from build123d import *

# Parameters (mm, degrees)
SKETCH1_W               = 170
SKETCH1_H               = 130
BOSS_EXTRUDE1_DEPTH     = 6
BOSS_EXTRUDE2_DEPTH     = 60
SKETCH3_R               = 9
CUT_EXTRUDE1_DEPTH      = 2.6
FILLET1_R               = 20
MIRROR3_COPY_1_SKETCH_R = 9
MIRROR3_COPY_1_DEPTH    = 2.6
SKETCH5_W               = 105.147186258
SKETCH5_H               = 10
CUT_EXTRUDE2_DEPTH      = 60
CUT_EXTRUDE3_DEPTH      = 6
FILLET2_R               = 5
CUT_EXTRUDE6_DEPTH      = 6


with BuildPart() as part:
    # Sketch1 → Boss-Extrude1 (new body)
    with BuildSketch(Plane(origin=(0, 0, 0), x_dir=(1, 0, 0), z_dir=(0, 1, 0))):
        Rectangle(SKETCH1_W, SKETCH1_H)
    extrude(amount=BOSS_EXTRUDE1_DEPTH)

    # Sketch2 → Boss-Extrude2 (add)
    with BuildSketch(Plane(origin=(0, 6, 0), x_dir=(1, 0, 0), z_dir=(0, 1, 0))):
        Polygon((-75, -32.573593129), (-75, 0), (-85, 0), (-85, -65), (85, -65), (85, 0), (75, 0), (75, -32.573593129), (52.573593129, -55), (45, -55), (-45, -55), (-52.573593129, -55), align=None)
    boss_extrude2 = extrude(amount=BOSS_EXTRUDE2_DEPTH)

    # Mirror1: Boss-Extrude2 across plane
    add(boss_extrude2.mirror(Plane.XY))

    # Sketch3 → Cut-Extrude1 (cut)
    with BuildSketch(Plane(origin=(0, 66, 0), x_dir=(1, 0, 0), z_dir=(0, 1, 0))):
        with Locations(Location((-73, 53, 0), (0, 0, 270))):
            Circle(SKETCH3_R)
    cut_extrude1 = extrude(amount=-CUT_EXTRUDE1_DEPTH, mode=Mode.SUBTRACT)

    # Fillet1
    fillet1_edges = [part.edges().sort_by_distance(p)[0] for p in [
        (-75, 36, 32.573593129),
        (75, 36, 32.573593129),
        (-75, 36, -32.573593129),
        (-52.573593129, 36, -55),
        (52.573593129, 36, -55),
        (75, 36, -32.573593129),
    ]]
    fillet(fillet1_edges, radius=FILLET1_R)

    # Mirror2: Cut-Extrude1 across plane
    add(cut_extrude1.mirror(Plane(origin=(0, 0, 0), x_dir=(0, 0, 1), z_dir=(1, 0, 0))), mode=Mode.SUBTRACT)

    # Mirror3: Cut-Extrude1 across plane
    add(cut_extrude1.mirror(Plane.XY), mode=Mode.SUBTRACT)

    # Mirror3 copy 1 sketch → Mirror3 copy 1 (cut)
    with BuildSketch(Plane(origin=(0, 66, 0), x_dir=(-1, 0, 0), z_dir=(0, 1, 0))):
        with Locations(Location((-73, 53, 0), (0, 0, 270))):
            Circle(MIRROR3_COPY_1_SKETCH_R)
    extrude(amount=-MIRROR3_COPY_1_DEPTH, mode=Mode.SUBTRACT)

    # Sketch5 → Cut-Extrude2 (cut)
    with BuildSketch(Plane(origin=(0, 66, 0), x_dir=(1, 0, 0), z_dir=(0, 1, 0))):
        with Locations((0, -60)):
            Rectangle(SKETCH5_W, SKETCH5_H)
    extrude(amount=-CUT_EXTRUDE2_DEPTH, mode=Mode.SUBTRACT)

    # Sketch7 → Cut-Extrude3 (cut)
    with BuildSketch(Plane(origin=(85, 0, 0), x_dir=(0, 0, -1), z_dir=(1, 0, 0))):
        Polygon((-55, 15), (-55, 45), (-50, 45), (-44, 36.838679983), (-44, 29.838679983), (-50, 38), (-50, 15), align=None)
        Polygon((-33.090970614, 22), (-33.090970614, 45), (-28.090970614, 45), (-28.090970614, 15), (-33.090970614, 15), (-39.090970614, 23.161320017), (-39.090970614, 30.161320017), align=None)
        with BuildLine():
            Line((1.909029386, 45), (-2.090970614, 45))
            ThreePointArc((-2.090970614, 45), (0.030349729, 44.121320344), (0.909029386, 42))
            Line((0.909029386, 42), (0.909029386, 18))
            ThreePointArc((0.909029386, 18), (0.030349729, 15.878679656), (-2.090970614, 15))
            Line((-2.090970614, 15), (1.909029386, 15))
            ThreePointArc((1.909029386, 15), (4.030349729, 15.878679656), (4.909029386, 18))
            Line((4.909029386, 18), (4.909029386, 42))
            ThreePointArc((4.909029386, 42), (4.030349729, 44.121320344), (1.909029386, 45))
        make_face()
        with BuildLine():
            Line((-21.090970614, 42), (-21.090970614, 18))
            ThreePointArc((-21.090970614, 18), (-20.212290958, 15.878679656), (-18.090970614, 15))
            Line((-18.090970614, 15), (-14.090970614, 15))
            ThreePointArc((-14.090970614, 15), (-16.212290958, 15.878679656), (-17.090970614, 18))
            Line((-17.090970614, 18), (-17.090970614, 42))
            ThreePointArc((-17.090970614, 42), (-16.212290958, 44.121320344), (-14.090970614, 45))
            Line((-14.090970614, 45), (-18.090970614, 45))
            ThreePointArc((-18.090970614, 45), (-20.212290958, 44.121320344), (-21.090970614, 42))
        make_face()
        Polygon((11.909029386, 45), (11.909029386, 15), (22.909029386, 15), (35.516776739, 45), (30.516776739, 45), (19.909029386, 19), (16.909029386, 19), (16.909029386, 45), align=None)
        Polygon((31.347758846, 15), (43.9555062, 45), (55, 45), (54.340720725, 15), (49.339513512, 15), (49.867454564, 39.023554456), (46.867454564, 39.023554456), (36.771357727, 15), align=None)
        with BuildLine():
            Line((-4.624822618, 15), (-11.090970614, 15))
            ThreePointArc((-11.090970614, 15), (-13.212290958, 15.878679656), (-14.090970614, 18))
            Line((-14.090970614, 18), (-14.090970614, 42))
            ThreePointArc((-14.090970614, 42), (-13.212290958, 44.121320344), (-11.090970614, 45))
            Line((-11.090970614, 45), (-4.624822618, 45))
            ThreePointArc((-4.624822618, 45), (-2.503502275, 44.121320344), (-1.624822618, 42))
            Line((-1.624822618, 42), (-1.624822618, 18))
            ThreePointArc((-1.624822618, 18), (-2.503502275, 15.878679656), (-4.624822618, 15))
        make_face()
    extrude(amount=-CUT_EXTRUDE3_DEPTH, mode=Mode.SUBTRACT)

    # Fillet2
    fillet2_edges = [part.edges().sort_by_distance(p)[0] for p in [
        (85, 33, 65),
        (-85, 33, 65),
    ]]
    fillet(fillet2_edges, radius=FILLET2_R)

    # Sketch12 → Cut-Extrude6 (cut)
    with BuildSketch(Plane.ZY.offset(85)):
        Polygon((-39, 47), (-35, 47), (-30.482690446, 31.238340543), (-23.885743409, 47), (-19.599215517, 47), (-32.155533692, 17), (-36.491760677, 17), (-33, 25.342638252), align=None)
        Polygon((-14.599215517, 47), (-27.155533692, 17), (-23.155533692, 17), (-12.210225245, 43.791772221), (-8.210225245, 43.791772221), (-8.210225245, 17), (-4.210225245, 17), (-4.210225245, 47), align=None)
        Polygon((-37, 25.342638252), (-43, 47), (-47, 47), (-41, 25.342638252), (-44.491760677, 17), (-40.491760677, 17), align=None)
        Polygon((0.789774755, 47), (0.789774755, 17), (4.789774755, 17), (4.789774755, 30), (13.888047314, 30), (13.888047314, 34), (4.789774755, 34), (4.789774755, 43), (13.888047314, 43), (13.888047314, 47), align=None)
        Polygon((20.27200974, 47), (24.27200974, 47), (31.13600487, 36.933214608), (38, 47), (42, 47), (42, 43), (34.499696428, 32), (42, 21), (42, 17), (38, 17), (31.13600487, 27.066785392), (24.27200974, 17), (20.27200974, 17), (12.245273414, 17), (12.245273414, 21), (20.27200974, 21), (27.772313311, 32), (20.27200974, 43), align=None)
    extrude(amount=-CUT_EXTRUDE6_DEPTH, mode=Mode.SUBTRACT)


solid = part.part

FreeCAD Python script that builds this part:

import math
import FreeCAD as App
import Part
import Sketcher

V = App.Vector


def edges_at(feature, points):
    """Names of the edges that pass closest to the given points."""
    edges = feature.Shape.Edges
    near = lambda p: min(range(len(edges)), key=lambda i: edges[i].distToShape(Part.Vertex(*p))[0])
    return sorted({f"Edge{near(p) + 1}" for p in points})

doc = App.newDocument("Part")
body = doc.addObject("PartDesign::Body", "Body")

# Sketch on XZ plane
sketch1 = body.newObject("Sketcher::SketchObject", "Sketch")
sketch1.AttachmentSupport = (doc.getObject("XZ_Plane"), [""])
sketch1.MapMode = "FlatFace"
sketch1.addGeometry([
    Part.LineSegment(V(-85, -65, 0), V(-85, 65, 0)),
    Part.LineSegment(V(-85, 65, 0), V(85, 65, 0)),
    Part.LineSegment(V(85, 65, 0), V(85, -65, 0)),
    Part.LineSegment(V(85, -65, 0), V(-85, -65, 0)),
], False)
sketch1.addConstraint([
    Sketcher.Constraint("Coincident", 0, 2, 1, 1),
    Sketcher.Constraint("Coincident", 1, 2, 2, 1),
    Sketcher.Constraint("Coincident", 2, 2, 3, 1),
    Sketcher.Constraint("Coincident", 3, 2, 0, 1),
    Sketcher.Constraint("Vertical", 0),
    Sketcher.Constraint("Horizontal", 1),
    Sketcher.Constraint("Vertical", 2),
    Sketcher.Constraint("Horizontal", 3),
    Sketcher.Constraint("Symmetric", 0, 2, 2, 2, -1, 1),
    Sketcher.Constraint("DistanceX", 1, 1, 1, 2, 170.0),
    Sketcher.Constraint("DistanceY", 0, 1, 0, 2, 130.0),
])
pad1 = body.newObject("PartDesign::Pad", "Pad")
pad1.Profile = sketch1
pad1.Length = 6
pad1.Reversed = True

# Sketch on XZ plane
sketch2 = body.newObject("Sketcher::SketchObject", "Sketch001")
sketch2.AttachmentSupport = (doc.getObject("XZ_Plane"), [""])
sketch2.MapMode = "FlatFace"
sketch2.AttachmentOffset = App.Placement(V(0, 0, -6), App.Rotation())
sketch2.addGeometry([
    Part.LineSegment(V(-75, 32.573593, 0), V(-75, 0, 0)),  # 0
    Part.LineSegment(V(-75, 0, 0), V(-85, 0, 0)),  # 1
    Part.LineSegment(V(-85, 0, 0), V(-85, 65, 0)),  # 2
    Part.LineSegment(V(-85, 65, 0), V(85, 65, 0)),  # 3
    Part.LineSegment(V(85, 65, 0), V(85, 0, 0)),  # 4
    Part.LineSegment(V(85, 0, 0), V(75, 0, 0)),  # 5
    Part.LineSegment(V(75, 0, 0), V(75, 32.573593, 0)),  # 6
    Part.LineSegment(V(75, 32.573593, 0), V(52.573593, 55, 0)),  # 7
    Part.LineSegment(V(52.573593, 55, 0), V(-52.573593, 55, 0)),  # 8
    Part.LineSegment(V(-52.573593, 55, 0), V(-75, 32.573593, 0)),  # 9
], False)
sketch2.addConstraint([
    Sketcher.Constraint("Coincident", 0, 2, 1, 1),
    Sketcher.Constraint("Coincident", 1, 2, 2, 1),
    Sketcher.Constraint("Coincident", 2, 2, 3, 1),
    Sketcher.Constraint("Coincident", 3, 2, 4, 1),
    Sketcher.Constraint("Coincident", 4, 2, 5, 1),
    Sketcher.Constraint("Coincident", 5, 2, 6, 1),
    Sketcher.Constraint("Coincident", 6, 2, 7, 1),
    Sketcher.Constraint("Coincident", 7, 2, 8, 1),
    Sketcher.Constraint("Coincident", 8, 2, 9, 1),
    Sketcher.Constraint("Coincident", 9, 2, 0, 1),
    Sketcher.Constraint("Vertical", 0),
    Sketcher.Constraint("Horizontal", 1),
    Sketcher.Constraint("Vertical", 2),
    Sketcher.Constraint("Horizontal", 3),
    Sketcher.Constraint("Vertical", 4),
    Sketcher.Constraint("Horizontal", 5),
    Sketcher.Constraint("Vertical", 6),
    Sketcher.Constraint("Horizontal", 8),
    Sketcher.Constraint("Symmetric", 1, 2, 4, 2, -1, 1),
    Sketcher.Constraint("Symmetric", 0, 2, 5, 2, -2),
    Sketcher.Constraint("Perpendicular", 7, 9),
    Sketcher.Constraint("Horizontal", 6, 2, 9, 2),
    Sketcher.Constraint("Equal", 7, 9),
    Sketcher.Constraint("DistanceX", 1, 2, 1, 1, 10.0),
    Sketcher.Constraint("DistanceX", 3, 1, 3, 2, 170.0),
    Sketcher.Constraint("DistanceY", 2, 1, 2, 2, 65.0),
    Sketcher.Constraint("DistanceY", -1, 1, 7, 2, 55.0),
    Sketcher.Constraint("Distance", 7, 31.715729),
])
pad2 = body.newObject("PartDesign::Pad", "Pad001")
pad2.Profile = sketch2
pad2.Length = 60
pad2.Reversed = True
doc.recompute()

mirrored = body.newObject("PartDesign::Mirrored", "Mirrored")
mirrored.Originals = [pad2]
mirrored.MirrorPlane = (doc.getObject("XY_Plane"), [""])
body.Tip = mirrored

# Sketch on XZ plane
sketch3 = body.newObject("Sketcher::SketchObject", "Sketch002")
sketch3.AttachmentSupport = (doc.getObject("XZ_Plane"), [""])
sketch3.MapMode = "FlatFace"
sketch3.AttachmentOffset = App.Placement(V(0, 0, -66), App.Rotation())
sketch3.addGeometry(Part.Circle(V(-73, -53, 0), V(0, 0, 1), 9), False)
sketch3.addConstraint([
    Sketcher.Constraint("Diameter", 0, 18.0),
    Sketcher.Constraint("DistanceX", 0, 3, -1, 1, 73.0),
    Sketcher.Constraint("DistanceY", 0, 3, -1, 1, 53.0),
])
pocket1 = body.newObject("PartDesign::Pocket", "Pocket")
pocket1.Profile = sketch3
pocket1.Length = 2.6
pocket1.Reversed = True
doc.recompute()

fillet = body.newObject("PartDesign::Fillet", "Fillet")
fillet.Base = (pocket1, edges_at(pocket1, [
    (-75, 36, 32.574),
    (75, 36, 32.574),
    (-75, 36, -32.574),
    (-52.574, 36, -55),
    (52.574, 36, -55),
    (75, 36, -32.574),
]))
fillet.Radius = 20
doc.recompute()

mirrored2 = body.newObject("PartDesign::Mirrored", "Mirrored001")
mirrored2.Originals = [pocket1]
mirrored2.MirrorPlane = (doc.getObject("YZ_Plane"), [""])
body.Tip = mirrored2
doc.recompute()

mirrored3 = body.newObject("PartDesign::Mirrored", "Mirrored002")
mirrored3.Originals = [pocket1]
mirrored3.MirrorPlane = (doc.getObject("XY_Plane"), [""])
body.Tip = mirrored3

# Sketch on XZ plane
sketch4 = body.newObject("Sketcher::SketchObject", "Sketch003")
sketch4.AttachmentSupport = (doc.getObject("XZ_Plane"), [""])
sketch4.MapMode = "FlatFace"
sketch4.AttachmentOffset = App.Placement(V(0, 0, -66), App.Rotation())
sketch4.addGeometry(Part.Circle(V(73, 53, 0), V(0, 0, 1), 9), False)
sketch4.addConstraint([
    Sketcher.Constraint("Diameter", 0, 18.0),
    Sketcher.Constraint("DistanceX", -1, 1, 0, 3, 73.0),
    Sketcher.Constraint("DistanceY", -1, 1, 0, 3, 53.0),
])
pocket2 = body.newObject("PartDesign::Pocket", "Pocket001")
pocket2.Profile = sketch4
pocket2.Length = 2.6
pocket2.Reversed = True

# Sketch on XZ plane
sketch5 = body.newObject("Sketcher::SketchObject", "Sketch004")
sketch5.AttachmentSupport = (doc.getObject("XZ_Plane"), [""])
sketch5.MapMode = "FlatFace"
sketch5.AttachmentOffset = App.Placement(V(0, 0, -66), App.Rotation())
sketch5.addGeometry([
    Part.LineSegment(V(-52.573593, 55, 0), V(-52.573593, 65, 0)),
    Part.LineSegment(V(-52.573593, 65, 0), V(52.573593, 65, 0)),
    Part.LineSegment(V(52.573593, 65, 0), V(52.573593, 55, 0)),
    Part.LineSegment(V(52.573593, 55, 0), V(-52.573593, 55, 0)),
], False)
sketch5.addConstraint([
    Sketcher.Constraint("Coincident", 0, 2, 1, 1),
    Sketcher.Constraint("Coincident", 1, 2, 2, 1),
    Sketcher.Constraint("Coincident", 2, 2, 3, 1),
    Sketcher.Constraint("Coincident", 3, 2, 0, 1),
    Sketcher.Constraint("Vertical", 0),
    Sketcher.Constraint("Horizontal", 1),
    Sketcher.Constraint("Vertical", 2),
    Sketcher.Constraint("Horizontal", 3),
    Sketcher.Constraint("DistanceY", 0, 1, 0, 2, 10.0),
    Sketcher.Constraint("DistanceY", -1, 1, 0, 2, 65.0),
    Sketcher.Constraint("DistanceX", 1, 1, 1, 2, 105.147186),
    Sketcher.Constraint("DistanceX", 0, 2, -1, 1, 52.573593),
])
pocket3 = body.newObject("PartDesign::Pocket", "Pocket002")
pocket3.Profile = sketch5
pocket3.Length = 60
pocket3.Reversed = True

# Sketch on YZ plane
sketch6 = body.newObject("Sketcher::SketchObject", "Sketch005")
sketch6.AttachmentSupport = (doc.getObject("YZ_Plane"), [""])
sketch6.MapMode = "FlatFace"
sketch6.AttachmentOffset = App.Placement(V(0, 0, 85), App.Rotation())
sketch6.addGeometry([
    Part.LineSegment(V(45, 55, 0), V(15, 55, 0)),  # 0
    Part.LineSegment(V(15, 55, 0), V(15, 50, 0)),  # 1
    Part.LineSegment(V(15, 50, 0), V(38, 50, 0)),  # 2
    Part.LineSegment(V(38, 50, 0), V(29.83868, 44, 0)),  # 3
    Part.LineSegment(V(29.83868, 44, 0), V(36.83868, 44, 0)),  # 4
    Part.LineSegment(V(36.83868, 44, 0), V(45, 50, 0)),  # 5
    Part.LineSegment(V(45, 50, 0), V(45, 55, 0)),  # 6
    Part.LineSegment(V(45, 33.090971, 0), V(22, 33.090971, 0)),  # 7
    Part.LineSegment(V(22, 33.090971, 0), V(30.16132, 39.090971, 0)),  # 8
    Part.LineSegment(V(30.16132, 39.090971, 0), V(23.16132, 39.090971, 0)),  # 9
    Part.LineSegment(V(23.16132, 39.090971, 0), V(15, 33.090971, 0)),  # 10
    Part.LineSegment(V(15, 33.090971, 0), V(15, 28.090971, 0)),  # 11
    Part.LineSegment(V(15, 28.090971, 0), V(45, 28.090971, 0)),  # 12
    Part.LineSegment(V(45, 28.090971, 0), V(45, 33.090971, 0)),  # 13
    Part.LineSegment(V(45, -1.909029, 0), V(45, 2.090971, 0)),  # 14
    Part.ArcOfCircle(Part.Circle(V(42, 2.090971, 0), V(0, 0, 1), 3), math.radians(-90), math.radians(0)),  # 15
    Part.LineSegment(V(42, -0.909029, 0), V(18, -0.909029, 0)),  # 16
    Part.ArcOfCircle(Part.Circle(V(18, 2.090971, 0), V(0, 0, 1), 3), math.radians(180), math.radians(270)),  # 17
    Part.LineSegment(V(15, 2.090971, 0), V(15, -1.909029, 0)),  # 18
    Part.ArcOfCircle(Part.Circle(V(18, -1.909029, 0), V(0, 0, 1), 3), math.radians(180), math.radians(270)),  # 19
    Part.LineSegment(V(18, -4.909029, 0), V(42, -4.909029, 0)),  # 20
    Part.ArcOfCircle(Part.Circle(V(42, -1.909029, 0), V(0, 0, 1), 3), math.radians(-90), math.radians(0)),  # 21
    Part.LineSegment(V(42, 21.090971, 0), V(18, 21.090971, 0)),  # 22
    Part.ArcOfCircle(Part.Circle(V(18, 18.090971, 0), V(0, 0, 1), 3), math.radians(90), math.radians(180)),  # 23
    Part.LineSegment(V(15, 18.090971, 0), V(15, 14.090971, 0)),  # 24
    Part.ArcOfCircle(Part.Circle(V(18, 14.090971, 0), V(0, 0, 1), 3), math.radians(90), math.radians(180)),  # 25
    Part.LineSegment(V(18, 17.090971, 0), V(42, 17.090971, 0)),  # 26
    Part.ArcOfCircle(Part.Circle(V(42, 14.090971, 0), V(0, 0, 1), 3), math.radians(0), math.radians(90)),  # 27
    Part.LineSegment(V(45, 14.090971, 0), V(45, 18.090971, 0)),  # 28
    Part.ArcOfCircle(Part.Circle(V(42, 18.090971, 0), V(0, 0, 1), 3), math.radians(0), math.radians(90)),  # 29
    Part.LineSegment(V(45, -11.909029, 0), V(15, -11.909029, 0)),  # 30
    Part.LineSegment(V(15, -11.909029, 0), V(15, -22.909029, 0)),  # 31
    Part.LineSegment(V(15, -22.909029, 0), V(45, -35.516777, 0)),  # 32
    Part.LineSegment(V(45, -35.516777, 0), V(45, -30.516777, 0)),  # 33
    Part.LineSegment(V(45, -30.516777, 0), V(19, -19.909029, 0)),  # 34
    Part.LineSegment(V(19, -19.909029, 0), V(19, -16.909029, 0)),  # 35
    Part.LineSegment(V(19, -16.909029, 0), V(45, -16.909029, 0)),  # 36
    Part.LineSegment(V(45, -16.909029, 0), V(45, -11.909029, 0)),  # 37
    Part.LineSegment(V(45, -43.955506, 0), V(15, -31.347759, 0)),  # 38
    Part.LineSegment(V(15, -31.347759, 0), V(15, -36.771358, 0)),  # 39
    Part.LineSegment(V(15, -36.771358, 0), V(39.023554, -46.867455, 0)),  # 40
    Part.LineSegment(V(39.023554, -46.867455, 0), V(39.023554, -49.867455, 0)),  # 41
    Part.LineSegment(V(39.023554, -49.867455, 0), V(15, -49.339514, 0)),  # 42
    Part.LineSegment(V(15, -49.339514, 0), V(15, -54.340721, 0)),  # 43
    Part.LineSegment(V(15, -54.340721, 0), V(45, -55, 0)),  # 44
    Part.LineSegment(V(45, -55, 0), V(45, -43.955506, 0)),  # 45
    Part.LineSegment(V(15, 11.090971, 0), V(15, 4.624823, 0)),  # 46
    Part.ArcOfCircle(Part.Circle(V(18, 4.624823, 0), V(0, 0, 1), 3), math.radians(180), math.radians(270)),  # 47
    Part.LineSegment(V(18, 1.624823, 0), V(42, 1.624823, 0)),  # 48
    Part.ArcOfCircle(Part.Circle(V(42, 4.624823, 0), V(0, 0, 1), 3), math.radians(-90), math.radians(0)),  # 49
    Part.LineSegment(V(45, 4.624823, 0), V(45, 11.090971, 0)),  # 50
    Part.ArcOfCircle(Part.Circle(V(42, 11.090971, 0), V(0, 0, 1), 3), math.radians(0), math.radians(90)),  # 51
    Part.LineSegment(V(42, 14.090971, 0), V(18, 14.090971, 0)),  # 52
    Part.ArcOfCircle(Part.Circle(V(18, 11.090971, 0), V(0, 0, 1), 3), math.radians(90), math.radians(180)),  # 53
], False)
sketch6.addConstraint([
    Sketcher.Constraint("Coincident", 0, 2, 1, 1),
    Sketcher.Constraint("Coincident", 1, 2, 2, 1),
    Sketcher.Constraint("Coincident", 2, 2, 3, 1),
    Sketcher.Constraint("Coincident", 3, 2, 4, 1),
    Sketcher.Constraint("Coincident", 4, 2, 5, 1),
    Sketcher.Constraint("Coincident", 5, 2, 6, 1),
    Sketcher.Constraint("Coincident", 6, 2, 0, 1),
    Sketcher.Constraint("Coincident", 7, 2, 8, 1),
    Sketcher.Constraint("Coincident", 8, 2, 9, 1),
    Sketcher.Constraint("Coincident", 9, 2, 10, 1),
    Sketcher.Constraint("Coincident", 10, 2, 11, 1),
    Sketcher.Constraint("Coincident", 11, 2, 12, 1),
    Sketcher.Constraint("Coincident", 12, 2, 13, 1),
    Sketcher.Constraint("Coincident", 13, 2, 7, 1),
    Sketcher.Constraint("Tangent", 14, 2, 15, 2),
    Sketcher.Constraint("Tangent", 15, 1, 16, 1),
    Sketcher.Constraint("Tangent", 16, 2, 17, 2),
    Sketcher.Constraint("Tangent", 17, 1, 18, 1),
    Sketcher.Constraint("Tangent", 18, 2, 19, 1),
    Sketcher.Constraint("Tangent", 19, 2, 20, 1),
    Sketcher.Constraint("Tangent", 20, 2, 21, 1),
    Sketcher.Constraint("Tangent", 21, 2, 14, 1),
    Sketcher.Constraint("Tangent", 22, 2, 23, 1),
    Sketcher.Constraint("Tangent", 23, 2, 24, 1),
    Sketcher.Constraint("Tangent", 24, 2, 25, 2),
    Sketcher.Constraint("Tangent", 25, 1, 26, 1),
    Sketcher.Constraint("Tangent", 26, 2, 27, 2),
    Sketcher.Constraint("Tangent", 27, 1, 28, 1),
    Sketcher.Constraint("Tangent", 28, 2, 29, 1),
    Sketcher.Constraint("Tangent", 29, 2, 22, 1),
    Sketcher.Constraint("Coincident", 30, 2, 31, 1),
    Sketcher.Constraint("Coincident", 31, 2, 32, 1),
    Sketcher.Constraint("Coincident", 32, 2, 33, 1),
    Sketcher.Constraint("Coincident", 33, 2, 34, 1),
    Sketcher.Constraint("Coincident", 34, 2, 35, 1),
    Sketcher.Constraint("Coincident", 35, 2, 36, 1),
    Sketcher.Constraint("Coincident", 36, 2, 37, 1),
    Sketcher.Constraint("Coincident", 37, 2, 30, 1),
    Sketcher.Constraint("Coincident", 38, 2, 39, 1),
    Sketcher.Constraint("Coincident", 39, 2, 40, 1),
    Sketcher.Constraint("Coincident", 40, 2, 41, 1),
    Sketcher.Constraint("Coincident", 41, 2, 42, 1),
    Sketcher.Constraint("Coincident", 42, 2, 43, 1),
    Sketcher.Constraint("Coincident", 43, 2, 44, 1),
    Sketcher.Constraint("Coincident", 44, 2, 45, 1),
    Sketcher.Constraint("Coincident", 45, 2, 38, 1),
    Sketcher.Constraint("Tangent", 46, 2, 47, 1),
    Sketcher.Constraint("Tangent", 47, 2, 48, 1),
    Sketcher.Constraint("Tangent", 48, 2, 49, 1),
    Sketcher.Constraint("Tangent", 49, 2, 50, 1),
    Sketcher.Constraint("Tangent", 50, 2, 51, 1),
    Sketcher.Constraint("Tangent", 51, 2, 52, 1),
    Sketcher.Constraint("Tangent", 52, 2, 53, 1),
    Sketcher.Constraint("Tangent", 53, 2, 46, 1),
    Sketcher.Constraint("Horizontal", 0),
    Sketcher.Constraint("Vertical", 1),
    Sketcher.Constraint("Horizontal", 2),
    Sketcher.Constraint("Horizontal", 4),
    Sketcher.Constraint("Vertical", 6),
    Sketcher.Constraint("Horizontal", 7),
    Sketcher.Constraint("Horizontal", 9),
    Sketcher.Constraint("Vertical", 11),
    Sketcher.Constraint("Horizontal", 12),
    Sketcher.Constraint("Vertical", 13),
    Sketcher.Constraint("Vertical", 14),
    Sketcher.Constraint("Horizontal", 16),
    Sketcher.Constraint("Vertical", 18),
    Sketcher.Constraint("Horizontal", 20),
    Sketcher.Constraint("Horizontal", 22),
    Sketcher.Constraint("Vertical", 24),
    Sketcher.Constraint("Horizontal", 26),
    Sketcher.Constraint("Vertical", 28),
    Sketcher.Constraint("Horizontal", 30),
    Sketcher.Constraint("Vertical", 31),
    Sketcher.Constraint("Vertical", 33),
    Sketcher.Constraint("Vertical", 35),
    Sketcher.Constraint("Horizontal", 36),
    Sketcher.Constraint("Vertical", 37),
    Sketcher.Constraint("Vertical", 39),
    Sketcher.Constraint("Vertical", 41),
    Sketcher.Constraint("Vertical", 43),
    Sketcher.Constraint("Vertical", 45),
    Sketcher.Constraint("Vertical", 46),
    Sketcher.Constraint("Horizontal", 48),
    Sketcher.Constraint("Vertical", 50),
    Sketcher.Constraint("Horizontal", 52),
    Sketcher.Constraint("Coincident", 51, 2, 27, 3),
    Sketcher.Constraint("Coincident", 52, 2, 25, 3),
    Sketcher.Constraint("Equal", 15, 17),
    Sketcher.Constraint("Equal", 17, 19),
    Sketcher.Constraint("Equal", 19, 21),
    Sketcher.Constraint("Equal", 21, 23),
    Sketcher.Constraint("Equal", 23, 25),
    Sketcher.Constraint("Equal", 27, 29),
    Sketcher.Constraint("Equal", 29, 47),
    Sketcher.Constraint("Equal", 47, 49),
    Sketcher.Constraint("Equal", 49, 51),
    Sketcher.Constraint("Equal", 51, 53),
    Sketcher.Constraint("Symmetric", 6, 2, 44, 2, -1),
    Sketcher.Constraint("Parallel", 3, 5),
    Sketcher.Constraint("Parallel", 5, 8),
    Sketcher.Constraint("Parallel", 8, 10),
    Sketcher.Constraint("Parallel", 32, 38),
    Sketcher.Constraint("Parallel", 38, 40),
    Sketcher.Constraint("Parallel", 42, 44),
    Sketcher.Constraint("Horizontal", 2, 2, 5, 2),
    Sketcher.Constraint("Horizontal", 7, 2, 10, 2),
    Sketcher.Constraint("Vertical", 19, 3, 23, 3),
    Sketcher.Constraint("Vertical", 21, 3, 27, 3),
    Sketcher.Constraint("Vertical", 1, 2, 10, 2),
    Sketcher.Constraint("Vertical", 6, 2, 12, 2),
    Sketcher.Constraint("Vertical", 13, 2, 14, 2),
    Sketcher.Constraint("Vertical", 11, 2, 17, 1),
    Sketcher.Constraint("Vertical", 24, 2, 30, 2),
    Sketcher.Constraint("Vertical", 28, 2, 32, 2),
    Sketcher.Constraint("Vertical", 33, 2, 36, 2),
    Sketcher.Constraint("Vertical", 31, 2, 38, 2),
    Sketcher.Constraint("Vertical", 39, 2, 42, 2),
    Sketcher.Constraint("Equal", 2, 7),
    Sketcher.Constraint("Equal", 6, 11),
    Sketcher.Constraint("Equal", 18, 24),
    Sketcher.Constraint("Equal", 13, 33),
    Sketcher.Constraint("Equal", 33, 37),
    Sketcher.Constraint("Equal", 35, 41),
    Sketcher.Constraint("Equal", 5, 8),
    Sketcher.Constraint("Radius", 15, 3.0),
    Sketcher.Constraint("DistanceX", 0, 2, 0, 1, 30.0),
    Sketcher.Constraint("DistanceX", 2, 1, 2, 2, 23.0),
    Sketcher.Constraint("DistanceX", 36, 1, 36, 2, 26.0),
    Sketcher.Constraint("DistanceY", 1, 2, 1, 1, 5.0),
    Sketcher.Constraint("DistanceY", 14, 1, 14, 2, 4.0),
    Sketcher.Constraint("DistanceY", 31, 2, 31, 1, 11.0),
    Sketcher.Constraint("DistanceY", 35, 1, 35, 2, 3.0),
    Sketcher.Constraint("DistanceX", -1, 1, 15, 3, 42.0),
    Sketcher.Constraint("DistanceY", -1, 1, 0, 2, 55.0),
    Sketcher.Constraint("DistanceY", -1, 1, 3, 2, 44.0),
    Sketcher.Constraint("DistanceY", 39, 2, 39, 1, 5.423599),
    Sketcher.Constraint("Distance", 3, 10.129518),
    Sketcher.Constraint("DistanceY", 43, 2, 43, 1, 5.001207),
    Sketcher.Constraint("DistanceY", 45, 1, 45, 2, 11.044494),
    Sketcher.Constraint("DistanceY", 46, 2, 46, 1, 6.466148),
    Sketcher.Constraint("DistanceY", -1, 1, 15, 3, 2.090971),
    Sketcher.Constraint("DistanceY", -1, 1, 23, 3, 18.090971),
    Sketcher.Constraint("DistanceY", -1, 1, 7, 2, 33.090971),
    Sketcher.Constraint("DistanceY", 30, 2, -1, 1, 11.909029),
    Sketcher.Constraint("DistanceY", 38, 2, -1, 1, 31.347759),
    Sketcher.Constraint("DistanceY", 43, 2, -1, 1, 54.340721),
])
pocket4 = body.newObject("PartDesign::Pocket", "Pocket003")
pocket4.Profile = sketch6
pocket4.Length = 6
doc.recompute()

fillet2 = body.newObject("PartDesign::Fillet", "Fillet001")
fillet2.Base = (pocket4, edges_at(pocket4, [(85, 33, 65), (-85, 33, 65)]))
fillet2.Radius = 5

# Sketch on YZ plane
sketch7 = body.newObject("Sketcher::SketchObject", "Sketch006")
sketch7.AttachmentSupport = (doc.getObject("YZ_Plane"), [""])
sketch7.MapMode = "FlatFace"
sketch7.AttachmentOffset = App.Placement(V(0, 0, -85), App.Rotation())
sketch7.addGeometry([
    Part.LineSegment(V(47, -35, 0), V(47, -39, 0)),  # 0
    Part.LineSegment(V(47, -39, 0), V(25.342638, -33, 0)),  # 1
    Part.LineSegment(V(25.342638, -33, 0), V(17, -36.491761, 0)),  # 2
    Part.LineSegment(V(17, -36.491761, 0), V(17, -32.155534, 0)),  # 3
    Part.LineSegment(V(17, -32.155534, 0), V(47, -19.599216, 0)),  # 4
    Part.LineSegment(V(47, -19.599216, 0), V(47, -23.885743, 0)),  # 5
    Part.LineSegment(V(47, -23.885743, 0), V(31.238341, -30.48269, 0)),  # 6
    Part.LineSegment(V(31.238341, -30.48269, 0), V(47, -35, 0)),  # 7
    Part.LineSegment(V(47, -14.599216, 0), V(17, -27.155534, 0)),  # 8
    Part.LineSegment(V(17, -27.155534, 0), V(17, -23.155534, 0)),  # 9
    Part.LineSegment(V(17, -23.155534, 0), V(43.791772, -12.210225, 0)),  # 10
    Part.LineSegment(V(43.791772, -12.210225, 0), V(43.791772, -8.210225, 0)),  # 11
    Part.LineSegment(V(43.791772, -8.210225, 0), V(17, -8.210225, 0)),  # 12
    Part.LineSegment(V(17, -8.210225, 0), V(17, -4.210225, 0)),  # 13
    Part.LineSegment(V(17, -4.210225, 0), V(47, -4.210225, 0)),  # 14
    Part.LineSegment(V(47, -4.210225, 0), V(47, -14.599216, 0)),  # 15
    Part.LineSegment(V(25.342638, -37, 0), V(47, -43, 0)),  # 16
    Part.LineSegment(V(47, -43, 0), V(47, -47, 0)),  # 17
    Part.LineSegment(V(47, -47, 0), V(25.342638, -41, 0)),  # 18
    Part.LineSegment(V(25.342638, -41, 0), V(17, -44.491761, 0)),  # 19
    Part.LineSegment(V(17, -44.491761, 0), V(17, -40.491761, 0)),  # 20
    Part.LineSegment(V(17, -40.491761, 0), V(25.342638, -37, 0)),  # 21
    Part.LineSegment(V(47, 0.789775, 0), V(17, 0.789775, 0)),  # 22
    Part.LineSegment(V(17, 0.789775, 0), V(17, 4.789775, 0)),  # 23
    Part.LineSegment(V(17, 4.789775, 0), V(30, 4.789775, 0)),  # 24
    Part.LineSegment(V(30, 4.789775, 0), V(30, 13.888047, 0)),  # 25
    Part.LineSegment(V(30, 13.888047, 0), V(34, 13.888047, 0)),  # 26
    Part.LineSegment(V(34, 13.888047, 0), V(34, 4.789775, 0)),  # 27
    Part.LineSegment(V(34, 4.789775, 0), V(43, 4.789775, 0)),  # 28
    Part.LineSegment(V(43, 4.789775, 0), V(43, 13.888047, 0)),  # 29
    Part.LineSegment(V(43, 13.888047, 0), V(47, 13.888047, 0)),  # 30
    Part.LineSegment(V(47, 13.888047, 0), V(47, 0.789775, 0)),  # 31
    Part.LineSegment(V(47, 24.27201, 0), V(47, 20.27201, 0)),  # 32
    Part.LineSegment(V(47, 20.27201, 0), V(43, 20.27201, 0)),  # 33
    Part.LineSegment(V(43, 20.27201, 0), V(32, 27.772313, 0)),  # 34
    Part.LineSegment(V(32, 27.772313, 0), V(21, 20.27201, 0)),  # 35
    Part.LineSegment(V(21, 20.27201, 0), V(21, 12.245273, 0)),  # 36
    Part.LineSegment(V(21, 12.245273, 0), V(17, 12.245273, 0)),  # 37
    Part.LineSegment(V(17, 12.245273, 0), V(17, 24.27201, 0)),  # 38
    Part.LineSegment(V(17, 24.27201, 0), V(27.066785, 31.136005, 0)),  # 39
    Part.LineSegment(V(27.066785, 31.136005, 0), V(17, 38, 0)),  # 40
    Part.LineSegment(V(17, 38, 0), V(17, 42, 0)),  # 41
    Part.LineSegment(V(17, 42, 0), V(21, 42, 0)),  # 42
    Part.LineSegment(V(21, 42, 0), V(32, 34.499696, 0)),  # 43
    Part.LineSegment(V(32, 34.499696, 0), V(43, 42, 0)),  # 44
    Part.LineSegment(V(43, 42, 0), V(47, 42, 0)),  # 45
    Part.LineSegment(V(47, 42, 0), V(47, 38, 0)),  # 46
    Part.LineSegment(V(47, 38, 0), V(36.933215, 31.136005, 0)),  # 47
    Part.LineSegment(V(36.933215, 31.136005, 0), V(47, 24.27201, 0)),  # 48
], False)
sketch7.addConstraint([
    Sketcher.Constraint("Coincident", 0, 2, 1, 1),
    Sketcher.Constraint("Coincident", 1, 2, 2, 1),
    Sketcher.Constraint("Coincident", 2, 2, 3, 1),
    Sketcher.Constraint("Coincident", 3, 2, 4, 1),
    Sketcher.Constraint("Coincident", 4, 2, 5, 1),
    Sketcher.Constraint("Coincident", 5, 2, 6, 1),
    Sketcher.Constraint("Coincident", 6, 2, 7, 1),
    Sketcher.Constraint("Coincident", 7, 2, 0, 1),
    Sketcher.Constraint("Coincident", 8, 2, 9, 1),
    Sketcher.Constraint("Coincident", 9, 2, 10, 1),
    Sketcher.Constraint("Coincident", 10, 2, 11, 1),
    Sketcher.Constraint("Coincident", 11, 2, 12, 1),
    Sketcher.Constraint("Coincident", 12, 2, 13, 1),
    Sketcher.Constraint("Coincident", 13, 2, 14, 1),
    Sketcher.Constraint("Coincident", 14, 2, 15, 1),
    Sketcher.Constraint("Coincident", 15, 2, 8, 1),
    Sketcher.Constraint("Coincident", 16, 2, 17, 1),
    Sketcher.Constraint("Coincident", 17, 2, 18, 1),
    Sketcher.Constraint("Coincident", 18, 2, 19, 1),
    Sketcher.Constraint("Coincident", 19, 2, 20, 1),
    Sketcher.Constraint("Coincident", 20, 2, 21, 1),
    Sketcher.Constraint("Coincident", 21, 2, 16, 1),
    Sketcher.Constraint("Coincident", 22, 2, 23, 1),
    Sketcher.Constraint("Coincident", 23, 2, 24, 1),
    Sketcher.Constraint("Coincident", 24, 2, 25, 1),
    Sketcher.Constraint("Coincident", 25, 2, 26, 1),
    Sketcher.Constraint("Coincident", 26, 2, 27, 1),
    Sketcher.Constraint("Coincident", 27, 2, 28, 1),
    Sketcher.Constraint("Coincident", 28, 2, 29, 1),
    Sketcher.Constraint("Coincident", 29, 2, 30, 1),
    Sketcher.Constraint("Coincident", 30, 2, 31, 1),
    Sketcher.Constraint("Coincident", 31, 2, 22, 1),
    Sketcher.Constraint("Coincident", 32, 2, 33, 1),
    Sketcher.Constraint("Coincident", 33, 2, 34, 1),
    Sketcher.Constraint("Coincident", 34, 2, 35, 1),
    Sketcher.Constraint("Coincident", 35, 2, 36, 1),
    Sketcher.Constraint("Coincident", 36, 2, 37, 1),
    Sketcher.Constraint("Coincident", 37, 2, 38, 1),
    Sketcher.Constraint("Coincident", 38, 2, 39, 1),
    Sketcher.Constraint("Coincident", 39, 2, 40, 1),
    Sketcher.Constraint("Coincident", 40, 2, 41, 1),
    Sketcher.Constraint("Coincident", 41, 2, 42, 1),
    Sketcher.Constraint("Coincident", 42, 2, 43, 1),
    Sketcher.Constraint("Coincident", 43, 2, 44, 1),
    Sketcher.Constraint("Coincident", 44, 2, 45, 1),
    Sketcher.Constraint("Coincident", 45, 2, 46, 1),
    Sketcher.Constraint("Coincident", 46, 2, 47, 1),
    Sketcher.Constraint("Coincident", 47, 2, 48, 1),
    Sketcher.Constraint("Coincident", 48, 2, 32, 1),
    Sketcher.Constraint("Vertical", 0),
    Sketcher.Constraint("Vertical", 3),
    Sketcher.Constraint("Vertical", 5),
    Sketcher.Constraint("Vertical", 9),
    Sketcher.Constraint("Vertical", 11),
    Sketcher.Constraint("Horizontal", 12),
    Sketcher.Constraint("Vertical", 13),
    Sketcher.Constraint("Horizontal", 14),
    Sketcher.Constraint("Vertical", 15),
    Sketcher.Constraint("Vertical", 17),
    Sketcher.Constraint("Vertical", 20),
    Sketcher.Constraint("Horizontal", 22),
    Sketcher.Constraint("Vertical", 23),
    Sketcher.Constraint("Horizontal", 24),
    Sketcher.Constraint("Vertical", 25),
    Sketcher.Constraint("Horizontal", 26),
    Sketcher.Constraint("Vertical", 27),
    Sketcher.Constraint("Horizontal", 28),
    Sketcher.Constraint("Vertical", 29),
    Sketcher.Constraint("Horizontal", 30),
    Sketcher.Constraint("Vertical", 31),
    Sketcher.Constraint("Vertical", 32),
    Sketcher.Constraint("Horizontal", 33),
    Sketcher.Constraint("Vertical", 36),
    Sketcher.Constraint("Horizontal", 37),
    Sketcher.Constraint("Vertical", 38),
    Sketcher.Constraint("Vertical", 41),
    Sketcher.Constraint("Horizontal", 42),
    Sketcher.Constraint("Horizontal", 45),
    Sketcher.Constraint("Vertical", 46),
    Sketcher.Constraint("Parallel", 2, 4),
    Sketcher.Constraint("Parallel", 4, 6),
    Sketcher.Constraint("Parallel", 6, 8),
    Sketcher.Constraint("Parallel", 1, 16),
    Sketcher.Constraint("Parallel", 16, 18),
    Sketcher.Constraint("Parallel", 8, 19),
    Sketcher.Constraint("Parallel", 19, 21),
    Sketcher.Constraint("Parallel", 35, 39),
    Sketcher.Constraint("Parallel", 34, 40),
    Sketcher.Constraint("Parallel", 40, 43),
    Sketcher.Constraint("Parallel", 39, 44),
    Sketcher.Constraint("Parallel", 44, 47),
    Sketcher.Constraint("Parallel", 43, 48),
    Sketcher.Constraint("Horizontal", 24, 2, 27, 2),
    Sketcher.Constraint("Horizontal", 26, 2, 29, 2),
    Sketcher.Constraint("Horizontal", 33, 2, 35, 2),
    Sketcher.Constraint("Horizontal", 42, 2, 44, 2),
    Sketcher.Constraint("Horizontal", 40, 2, 46, 2),
    Sketcher.Constraint("Horizontal", 39, 2, 47, 2),
    Sketcher.Constraint("Horizontal", 38, 2, 48, 2),
    Sketcher.Constraint("Vertical", 0, 2, 4, 2),
    Sketcher.Constraint("Vertical", 3, 2, 8, 2),
    Sketcher.Constraint("Vertical", 9, 2, 12, 2),
    Sketcher.Constraint("Vertical", 7, 2, 14, 2),
    Sketcher.Constraint("Vertical", 15, 2, 16, 2),
    Sketcher.Constraint("Vertical", 1, 2, 18, 2),
    Sketcher.Constraint("Vertical", 13, 2, 19, 2),
    Sketcher.Constraint("Vertical", 18, 2, 21, 2),
    Sketcher.Constraint("Vertical", 20, 2, 22, 2),
    Sketcher.Constraint("Vertical", 17, 2, 30, 2),
    Sketcher.Constraint("Vertical", 31, 2, 32, 2),
    Sketcher.Constraint("Vertical", 29, 2, 33, 2),
    Sketcher.Constraint("Vertical", 23, 2, 37, 2),
    Sketcher.Constraint("Vertical", 38, 2, 40, 2),
    Sketcher.Constraint("Vertical", 36, 2, 42, 2),
    Sketcher.Constraint("Vertical", 34, 2, 43, 2),
    Sketcher.Constraint("Vertical", 33, 2, 44, 2),
    Sketcher.Constraint("Equal", 26, 30),
    Sketcher.Constraint("Equal", 33, 37),
    Sketcher.Constraint("Equal", 45, 0),
    Sketcher.Constraint("Equal", 0, 9),
    Sketcher.Constraint("Equal", 9, 11),
    Sketcher.Constraint("Equal", 11, 13),
    Sketcher.Constraint("Equal", 13, 17),
    Sketcher.Constraint("Equal", 20, 23),
    Sketcher.Constraint("Equal", 23, 32),
    Sketcher.Constraint("Equal", 32, 41),
    Sketcher.Constraint("DistanceX", 14, 1, 14, 2, 30.0),
    Sketcher.Constraint("DistanceX", 24, 1, 24, 2, 13.0),
    Sketcher.Constraint("DistanceX", 26, 1, 26, 2, 4.0),
    Sketcher.Constraint("DistanceX", -1, 1, 0, 2, 47.0),
    Sketcher.Constraint("DistanceY", 0, 2, -1, 1, 39.0),
    Sketcher.Constraint("DistanceY", 1, 2, -1, 1, 33.0),
    Sketcher.Constraint("DistanceY", 16, 2, -1, 1, 43.0),
    Sketcher.Constraint("DistanceY", -1, 1, 40, 2, 38.0),
    Sketcher.Constraint("DistanceY", 3, 2, 8, 2, 5.0),
    Sketcher.Constraint("DistanceY", 13, 2, 22, 2, 5.0),
    Sketcher.Constraint("Distance", 10, 28.9413),
    Sketcher.Constraint("DistanceY", 15, 2, 15, 1, 10.38899),
    Sketcher.Constraint("DistanceY", 23, 2, 36, 2, 7.455499),
    Sketcher.Constraint("Distance", 7, 16.396219),
    Sketcher.Constraint("DistanceX", 12, 2, 12, 1, 26.791772),
    Sketcher.Constraint("DistanceY", 3, 1, 3, 2, 4.336227),
    Sketcher.Constraint("DistanceY", 5, 2, 5, 1, 4.286528),
    Sketcher.Constraint("DistanceY", 25, 1, 25, 2, 9.098273),
    Sketcher.Constraint("DistanceY", 36, 2, 36, 1, 8.026736),
    Sketcher.Constraint("DistanceX", -1, 1, 1, 2, 25.342638),
    Sketcher.Constraint("DistanceY", 34, 2, 39, 2, 3.363692),
])
pocket5 = body.newObject("PartDesign::Pocket", "Pocket004")
pocket5.Profile = sketch7
pocket5.Length = 6
pocket5.Reversed = True

doc.recompute()
